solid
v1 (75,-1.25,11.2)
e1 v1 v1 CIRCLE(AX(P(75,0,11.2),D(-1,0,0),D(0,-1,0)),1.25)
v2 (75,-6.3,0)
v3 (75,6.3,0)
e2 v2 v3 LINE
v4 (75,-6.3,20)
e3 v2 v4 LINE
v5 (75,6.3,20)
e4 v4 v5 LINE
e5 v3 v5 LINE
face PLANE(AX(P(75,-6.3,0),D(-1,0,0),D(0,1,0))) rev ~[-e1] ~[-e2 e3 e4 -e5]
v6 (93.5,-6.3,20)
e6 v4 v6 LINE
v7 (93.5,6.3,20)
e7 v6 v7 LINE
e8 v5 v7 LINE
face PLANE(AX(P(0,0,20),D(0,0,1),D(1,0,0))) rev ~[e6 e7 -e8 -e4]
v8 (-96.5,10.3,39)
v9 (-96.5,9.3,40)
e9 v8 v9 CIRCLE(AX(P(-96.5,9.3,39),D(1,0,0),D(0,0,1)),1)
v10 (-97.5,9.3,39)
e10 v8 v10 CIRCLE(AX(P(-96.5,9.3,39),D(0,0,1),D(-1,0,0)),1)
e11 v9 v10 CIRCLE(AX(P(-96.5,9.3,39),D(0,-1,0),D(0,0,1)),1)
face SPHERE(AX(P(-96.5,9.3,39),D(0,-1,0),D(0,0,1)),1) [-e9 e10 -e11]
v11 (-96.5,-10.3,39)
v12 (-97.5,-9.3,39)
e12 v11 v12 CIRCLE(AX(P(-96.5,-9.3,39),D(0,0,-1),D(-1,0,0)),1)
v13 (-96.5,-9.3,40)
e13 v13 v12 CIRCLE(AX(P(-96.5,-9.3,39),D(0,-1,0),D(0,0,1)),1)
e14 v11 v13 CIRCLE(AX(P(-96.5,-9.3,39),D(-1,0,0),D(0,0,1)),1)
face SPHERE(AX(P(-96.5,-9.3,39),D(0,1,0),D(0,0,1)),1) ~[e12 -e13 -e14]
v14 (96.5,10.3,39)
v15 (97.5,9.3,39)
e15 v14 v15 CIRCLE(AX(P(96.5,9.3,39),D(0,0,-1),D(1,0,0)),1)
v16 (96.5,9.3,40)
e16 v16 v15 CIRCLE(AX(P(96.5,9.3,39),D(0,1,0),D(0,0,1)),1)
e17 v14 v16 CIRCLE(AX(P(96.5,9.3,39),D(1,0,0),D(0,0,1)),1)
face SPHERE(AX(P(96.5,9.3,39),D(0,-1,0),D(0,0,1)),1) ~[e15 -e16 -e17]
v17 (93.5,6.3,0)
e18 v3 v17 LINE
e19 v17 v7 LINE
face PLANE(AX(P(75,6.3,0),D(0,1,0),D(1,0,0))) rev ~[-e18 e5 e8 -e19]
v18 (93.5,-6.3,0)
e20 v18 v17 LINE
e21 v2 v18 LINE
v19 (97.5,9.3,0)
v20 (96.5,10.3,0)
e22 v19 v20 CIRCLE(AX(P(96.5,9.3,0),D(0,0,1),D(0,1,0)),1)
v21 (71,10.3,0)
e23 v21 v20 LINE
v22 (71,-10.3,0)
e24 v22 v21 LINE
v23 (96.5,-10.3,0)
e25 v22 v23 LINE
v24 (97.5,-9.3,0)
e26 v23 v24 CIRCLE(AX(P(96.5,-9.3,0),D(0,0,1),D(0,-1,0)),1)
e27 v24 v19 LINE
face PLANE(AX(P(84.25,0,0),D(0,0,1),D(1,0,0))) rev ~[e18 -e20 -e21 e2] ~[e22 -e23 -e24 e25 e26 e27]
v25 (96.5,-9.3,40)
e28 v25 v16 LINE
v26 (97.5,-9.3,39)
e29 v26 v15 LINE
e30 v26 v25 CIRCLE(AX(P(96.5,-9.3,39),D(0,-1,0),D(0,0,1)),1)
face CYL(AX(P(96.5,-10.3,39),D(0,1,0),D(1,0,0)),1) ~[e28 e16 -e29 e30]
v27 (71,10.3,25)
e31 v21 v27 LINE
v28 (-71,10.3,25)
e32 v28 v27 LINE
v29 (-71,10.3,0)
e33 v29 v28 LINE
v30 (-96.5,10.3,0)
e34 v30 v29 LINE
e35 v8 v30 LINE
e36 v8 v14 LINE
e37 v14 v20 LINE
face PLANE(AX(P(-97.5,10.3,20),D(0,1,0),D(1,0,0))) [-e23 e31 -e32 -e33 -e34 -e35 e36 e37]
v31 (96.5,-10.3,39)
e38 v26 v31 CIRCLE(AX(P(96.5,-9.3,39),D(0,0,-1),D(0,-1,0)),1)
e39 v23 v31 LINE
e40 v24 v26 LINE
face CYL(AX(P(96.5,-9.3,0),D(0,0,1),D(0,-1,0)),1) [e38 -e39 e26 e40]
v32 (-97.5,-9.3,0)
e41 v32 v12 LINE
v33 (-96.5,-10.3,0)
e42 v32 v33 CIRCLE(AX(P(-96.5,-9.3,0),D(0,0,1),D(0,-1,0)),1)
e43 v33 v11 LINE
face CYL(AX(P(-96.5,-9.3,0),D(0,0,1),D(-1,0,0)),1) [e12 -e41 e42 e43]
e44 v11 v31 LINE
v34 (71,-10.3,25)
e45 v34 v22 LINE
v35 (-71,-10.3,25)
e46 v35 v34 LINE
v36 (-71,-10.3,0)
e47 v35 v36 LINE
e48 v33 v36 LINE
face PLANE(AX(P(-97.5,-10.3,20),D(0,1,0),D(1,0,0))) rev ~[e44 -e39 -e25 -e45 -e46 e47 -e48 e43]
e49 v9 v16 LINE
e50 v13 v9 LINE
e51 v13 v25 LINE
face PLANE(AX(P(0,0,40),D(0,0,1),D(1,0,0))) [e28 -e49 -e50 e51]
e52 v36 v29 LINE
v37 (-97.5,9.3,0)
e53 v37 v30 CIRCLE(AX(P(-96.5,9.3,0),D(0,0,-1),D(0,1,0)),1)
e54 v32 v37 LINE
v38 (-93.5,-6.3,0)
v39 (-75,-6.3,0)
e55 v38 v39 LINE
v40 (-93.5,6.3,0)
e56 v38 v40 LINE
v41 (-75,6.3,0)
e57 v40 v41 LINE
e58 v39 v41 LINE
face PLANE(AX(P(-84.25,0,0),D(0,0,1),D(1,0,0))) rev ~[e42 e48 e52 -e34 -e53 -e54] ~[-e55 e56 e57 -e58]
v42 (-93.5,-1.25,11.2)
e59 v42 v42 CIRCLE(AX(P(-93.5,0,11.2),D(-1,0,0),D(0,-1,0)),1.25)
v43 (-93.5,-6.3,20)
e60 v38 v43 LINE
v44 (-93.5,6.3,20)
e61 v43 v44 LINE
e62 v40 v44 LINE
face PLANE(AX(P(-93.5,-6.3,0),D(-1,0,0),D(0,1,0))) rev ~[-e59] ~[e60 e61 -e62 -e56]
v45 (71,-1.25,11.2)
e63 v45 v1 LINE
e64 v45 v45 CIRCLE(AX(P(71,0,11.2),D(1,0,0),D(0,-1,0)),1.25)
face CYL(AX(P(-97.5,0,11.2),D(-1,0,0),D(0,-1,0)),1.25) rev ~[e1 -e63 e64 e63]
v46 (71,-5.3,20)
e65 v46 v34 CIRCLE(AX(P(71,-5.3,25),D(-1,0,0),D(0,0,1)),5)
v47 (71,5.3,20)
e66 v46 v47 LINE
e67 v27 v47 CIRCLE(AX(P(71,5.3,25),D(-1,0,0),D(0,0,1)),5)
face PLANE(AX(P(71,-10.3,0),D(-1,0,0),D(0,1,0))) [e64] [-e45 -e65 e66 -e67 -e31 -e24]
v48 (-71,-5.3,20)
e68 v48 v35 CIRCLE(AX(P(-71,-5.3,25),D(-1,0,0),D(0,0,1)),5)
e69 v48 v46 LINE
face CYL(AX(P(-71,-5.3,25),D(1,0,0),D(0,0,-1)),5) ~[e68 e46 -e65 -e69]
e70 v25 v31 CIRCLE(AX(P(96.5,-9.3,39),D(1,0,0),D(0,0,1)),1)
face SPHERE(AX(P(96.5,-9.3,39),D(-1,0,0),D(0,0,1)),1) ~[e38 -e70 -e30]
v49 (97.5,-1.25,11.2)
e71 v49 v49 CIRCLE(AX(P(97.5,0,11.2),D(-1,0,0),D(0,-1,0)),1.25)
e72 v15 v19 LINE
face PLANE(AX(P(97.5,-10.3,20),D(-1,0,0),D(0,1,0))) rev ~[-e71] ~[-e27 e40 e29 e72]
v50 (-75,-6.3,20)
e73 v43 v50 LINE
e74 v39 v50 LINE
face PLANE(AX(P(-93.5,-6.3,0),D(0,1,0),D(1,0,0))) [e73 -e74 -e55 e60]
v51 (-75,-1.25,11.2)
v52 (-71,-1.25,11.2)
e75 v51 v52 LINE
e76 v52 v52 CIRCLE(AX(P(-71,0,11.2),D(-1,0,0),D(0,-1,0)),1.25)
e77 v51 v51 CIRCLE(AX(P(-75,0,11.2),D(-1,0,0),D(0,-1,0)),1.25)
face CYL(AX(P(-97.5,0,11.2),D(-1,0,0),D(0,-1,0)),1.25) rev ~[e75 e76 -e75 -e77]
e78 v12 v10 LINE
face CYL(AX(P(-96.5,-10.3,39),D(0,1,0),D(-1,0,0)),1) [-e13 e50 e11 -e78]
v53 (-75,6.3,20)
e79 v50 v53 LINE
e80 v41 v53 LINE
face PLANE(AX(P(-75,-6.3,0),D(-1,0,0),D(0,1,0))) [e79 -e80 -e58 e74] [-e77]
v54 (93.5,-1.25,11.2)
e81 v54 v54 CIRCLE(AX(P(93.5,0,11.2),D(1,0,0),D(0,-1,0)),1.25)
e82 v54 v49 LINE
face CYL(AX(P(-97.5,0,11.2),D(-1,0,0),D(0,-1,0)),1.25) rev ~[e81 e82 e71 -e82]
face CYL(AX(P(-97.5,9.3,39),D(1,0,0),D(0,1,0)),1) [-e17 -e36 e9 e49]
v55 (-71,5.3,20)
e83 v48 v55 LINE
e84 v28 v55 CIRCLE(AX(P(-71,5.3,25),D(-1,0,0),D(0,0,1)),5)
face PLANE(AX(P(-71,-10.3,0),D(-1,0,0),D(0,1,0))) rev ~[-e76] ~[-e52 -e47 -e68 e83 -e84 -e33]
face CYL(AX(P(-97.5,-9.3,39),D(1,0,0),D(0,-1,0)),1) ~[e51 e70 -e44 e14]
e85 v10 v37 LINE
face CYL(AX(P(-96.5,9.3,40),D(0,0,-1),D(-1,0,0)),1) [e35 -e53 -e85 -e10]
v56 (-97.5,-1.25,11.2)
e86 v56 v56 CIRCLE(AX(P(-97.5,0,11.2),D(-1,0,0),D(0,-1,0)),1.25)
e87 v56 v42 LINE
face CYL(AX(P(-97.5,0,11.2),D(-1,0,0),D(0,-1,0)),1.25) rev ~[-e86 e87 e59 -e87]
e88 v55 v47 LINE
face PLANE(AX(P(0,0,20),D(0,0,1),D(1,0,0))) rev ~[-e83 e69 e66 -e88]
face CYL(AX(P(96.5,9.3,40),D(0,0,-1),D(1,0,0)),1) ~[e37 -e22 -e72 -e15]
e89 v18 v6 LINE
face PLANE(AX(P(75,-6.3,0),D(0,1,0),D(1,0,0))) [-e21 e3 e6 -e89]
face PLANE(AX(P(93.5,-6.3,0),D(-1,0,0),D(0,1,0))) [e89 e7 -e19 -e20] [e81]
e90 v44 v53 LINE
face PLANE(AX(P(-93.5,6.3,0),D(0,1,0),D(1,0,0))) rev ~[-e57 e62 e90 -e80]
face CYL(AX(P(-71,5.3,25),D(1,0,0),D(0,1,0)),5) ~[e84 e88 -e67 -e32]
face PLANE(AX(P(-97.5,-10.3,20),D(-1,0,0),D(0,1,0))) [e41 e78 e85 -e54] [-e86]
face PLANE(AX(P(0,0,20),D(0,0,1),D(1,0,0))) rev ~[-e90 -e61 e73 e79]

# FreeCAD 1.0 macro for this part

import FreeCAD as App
import Part
import Sketcher

V = App.Vector


def edges_at(feature, points):
    """Names of the edges that pass closest to the given points."""
    edges = feature.Shape.Edges
    near = lambda p: min(range(len(edges)), key=lambda i: edges[i].distToShape(Part.Vertex(*p))[0])
    return sorted({f"Edge{near(p) + 1}" for p in points})


def add_polygon(sketch, points):
    """Adds a closed chain of lines whose ends are joined by coincident constraints."""
    first, n = sketch.GeometryCount, len(points)
    for a, b in zip(points, points[1:] + points[:1]):
        sketch.addGeometry(Part.LineSegment(App.Vector(*a, 0), App.Vector(*b, 0)), False)
    for i in range(n):
        sketch.addConstraint(Sketcher.Constraint("Coincident", first + i, 2, first + (i + 1) % n, 1))

doc = App.newDocument("Part")
body = doc.addObject("PartDesign::Body", "Body")

sketch1 = body.newObject("Sketcher::SketchObject", "Sketch")
sketch1.AttachmentSupport = (doc.getObject("XY_Plane"), [""])
sketch1.MapMode = "FlatFace"
add_polygon(sketch1, [(-97.5, 10.3), (-97.5, -10.3), (-71, -10.3), (-71, 10.3)])
add_polygon(sketch1, [(-75, -6.3), (-93.5, -6.3), (-93.5, 6.3), (-75, 6.3)])
sketch1.addConstraint(Sketcher.Constraint("Vertical", 0))
sketch1.addConstraint(Sketcher.Constraint("Horizontal", 1))
sketch1.addConstraint(Sketcher.Constraint("Vertical", 2))
sketch1.addConstraint(Sketcher.Constraint("Horizontal", 3))
sketch1.addConstraint(Sketcher.Constraint("Horizontal", 4))
sketch1.addConstraint(Sketcher.Constraint("Vertical", 5))
sketch1.addConstraint(Sketcher.Constraint("Horizontal", 6))
sketch1.addConstraint(Sketcher.Constraint("Vertical", 7))
sketch1.addConstraint(Sketcher.Constraint("DistanceX", 1, 1, 1, 2, 26.5))
sketch1.addConstraint(Sketcher.Constraint("DistanceX", 4, 2, 4, 1, 18.5))
sketch1.addConstraint(Sketcher.Constraint("DistanceY", 0, 2, 0, 1, 20.6))
sketch1.addConstraint(Sketcher.Constraint("DistanceY", 5, 1, 5, 2, 12.6))
sketch1.addConstraint(Sketcher.Constraint("DistanceX", 1, 2, -1, 1, 71.0))
sketch1.addConstraint(Sketcher.Constraint("DistanceX", 6, 2, -1, 1, 75.0))
sketch1.addConstraint(Sketcher.Constraint("DistanceY", 0, 2, 4, 2, 4.0))
sketch1.addConstraint(Sketcher.Constraint("DistanceY", 0, 2, -1, 1, 10.3))
pad1 = body.newObject("PartDesign::Pad", "Pad")
pad1.Profile = sketch1
pad1.Length = 20
body2 = doc.addObject("PartDesign::Body", "Body001")

sketch2 = body2.newObject("Sketcher::SketchObject", "Sketch001")
sketch2.AttachmentSupport = (doc.getObject("XY_Plane001"), [""])
sketch2.MapMode = "FlatFace"
add_polygon(sketch2, [(71, 10.3), (71, -10.3), (97.5, -10.3), (97.5, 10.3)])
add_polygon(sketch2, [(93.5, -6.3), (75, -6.3), (75, 6.3), (93.5, 6.3)])
sketch2.addConstraint(Sketcher.Constraint("Vertical", 0))
sketch2.addConstraint(Sketcher.Constraint("Horizontal", 1))
sketch2.addConstraint(Sketcher.Constraint("Vertical", 2))
sketch2.addConstraint(Sketcher.Constraint("Horizontal", 3))
sketch2.addConstraint(Sketcher.Constraint("Horizontal", 4))
sketch2.addConstraint(Sketcher.Constraint("Vertical", 5))
sketch2.addConstraint(Sketcher.Constraint("Horizontal", 6))
sketch2.addConstraint(Sketcher.Constraint("Vertical", 7))
sketch2.addConstraint(Sketcher.Constraint("DistanceX", 1, 1, 1, 2, 26.5))
sketch2.addConstraint(Sketcher.Constraint("DistanceX", 4, 2, 4, 1, 18.5))
sketch2.addConstraint(Sketcher.Constraint("DistanceY", 0, 2, 0, 1, 20.6))
sketch2.addConstraint(Sketcher.Constraint("DistanceY", 5, 1, 5, 2, 12.6))
sketch2.addConstraint(Sketcher.Constraint("DistanceX", -1, 1, 0, 2, 71.0))
sketch2.addConstraint(Sketcher.Constraint("DistanceX", -1, 1, 4, 2, 75.0))
sketch2.addConstraint(Sketcher.Constraint("DistanceY", 0, 2, 4, 2, 4.0))
sketch2.addConstraint(Sketcher.Constraint("DistanceY", 0, 2, -1, 1, 10.3))
pad2 = body2.newObject("PartDesign::Pad", "Pad001")
pad2.Profile = sketch2
pad2.Length = 20
body.AllowCompound = True
doc.recompute()

boolean = body.newObject("PartDesign::Boolean", "Boolean")
boolean.Type = "Fuse"
boolean.addObjects([body2])

sketch3 = body.newObject("Sketcher::SketchObject", "Sketch002")
sketch3.AttachmentSupport = (doc.getObject("XY_Plane"), [""])
sketch3.MapMode = "FlatFace"
sketch3.AttachmentOffset = App.Placement(V(0, 0, 20), App.Rotation())
add_polygon(sketch3, [(-97.5, 10.3), (-97.5, -10.3), (97.5, -10.3), (97.5, 10.3)])
sketch3.addConstraint(Sketcher.Constraint("Vertical", 0))
sketch3.addConstraint(Sketcher.Constraint("Horizontal", 1))
sketch3.addConstraint(Sketcher.Constraint("Vertical", 2))
sketch3.addConstraint(Sketcher.Constraint("Horizontal", 3))
sketch3.addConstraint(Sketcher.Constraint("Symmetric", 0, 2, 2, 2, -1, 1))
sketch3.addConstraint(Sketcher.Constraint("DistanceX", 1, 1, 1, 2, 195.0))
sketch3.addConstraint(Sketcher.Constraint("DistanceY", 0, 2, 0, 1, 20.6))
pad3 = body.newObject("PartDesign::Pad", "Pad002")
pad3.Profile = sketch3
pad3.Length = 20
doc.recompute()

fillet = body.newObject("PartDesign::Fillet", "Fillet")
fillet.Base = (pad3, edges_at(pad3, [
    (-97.5, 0, 40),
    (0, -10.3, 40),
    (97.5, 0, 40),
    (0, 10.3, 40),
    (-97.5, -10.3, 20),
    (97.5, -10.3, 20),
    (97.5, 10.3, 20),
    (-97.5, 10.3, 20),
]))
fillet.Radius = 1

sketch4 = body.newObject("Sketcher::SketchObject", "Sketch003")
sketch4.AttachmentSupport = (doc.getObject("YZ_Plane"), [""])
sketch4.MapMode = "FlatFace"
sketch4.AttachmentOffset = App.Placement(V(0, 0, -97.5), App.Rotation())
sketch4.addGeometry(Part.Circle(V(0, 11.2, 0), V(0, 0, 1), 1.25), False)
sketch4.addConstraint(Sketcher.Constraint("PointOnObject", 0, 3, -2))
sketch4.addConstraint(Sketcher.Constraint("Diameter", 0, 2.5))
sketch4.addConstraint(Sketcher.Constraint("DistanceY", -1, 1, 0, 3, 11.2))
pocket1 = body.newObject("PartDesign::Pocket", "Pocket")
pocket1.Profile = sketch4
pocket1.Length = 2000
pocket1.Reversed = True

sketch5 = body.newObject("Sketcher::SketchObject", "Sketch004")
sketch5.AttachmentSupport = (doc.getObject("YZ_Plane"), [""])
sketch5.MapMode = "FlatFace"
sketch5.AttachmentOffset = App.Placement(V(0, 0, 97.5), App.Rotation())
sketch5.addGeometry(Part.Circle(V(0, 11.2, 0), V(0, 0, 1), 1.25), False)
sketch5.addConstraint(Sketcher.Constraint("PointOnObject", 0, 3, -2))
sketch5.addConstraint(Sketcher.Constraint("Diameter", 0, 2.5))
sketch5.addConstraint(Sketcher.Constraint("DistanceY", -1, 1, 0, 3, 11.2))
pocket2 = body.newObject("PartDesign::Pocket", "Pocket001")
pocket2.Profile = sketch5
pocket2.Length = 100
doc.recompute()

fillet2 = body.newObject("PartDesign::Fillet", "Fillet001")
fillet2.Base = (pocket2, edges_at(pocket2, [(0, 10.3, 20), (0, -10.3, 20)]))
fillet2.Radius = 5

doc.recompute()
